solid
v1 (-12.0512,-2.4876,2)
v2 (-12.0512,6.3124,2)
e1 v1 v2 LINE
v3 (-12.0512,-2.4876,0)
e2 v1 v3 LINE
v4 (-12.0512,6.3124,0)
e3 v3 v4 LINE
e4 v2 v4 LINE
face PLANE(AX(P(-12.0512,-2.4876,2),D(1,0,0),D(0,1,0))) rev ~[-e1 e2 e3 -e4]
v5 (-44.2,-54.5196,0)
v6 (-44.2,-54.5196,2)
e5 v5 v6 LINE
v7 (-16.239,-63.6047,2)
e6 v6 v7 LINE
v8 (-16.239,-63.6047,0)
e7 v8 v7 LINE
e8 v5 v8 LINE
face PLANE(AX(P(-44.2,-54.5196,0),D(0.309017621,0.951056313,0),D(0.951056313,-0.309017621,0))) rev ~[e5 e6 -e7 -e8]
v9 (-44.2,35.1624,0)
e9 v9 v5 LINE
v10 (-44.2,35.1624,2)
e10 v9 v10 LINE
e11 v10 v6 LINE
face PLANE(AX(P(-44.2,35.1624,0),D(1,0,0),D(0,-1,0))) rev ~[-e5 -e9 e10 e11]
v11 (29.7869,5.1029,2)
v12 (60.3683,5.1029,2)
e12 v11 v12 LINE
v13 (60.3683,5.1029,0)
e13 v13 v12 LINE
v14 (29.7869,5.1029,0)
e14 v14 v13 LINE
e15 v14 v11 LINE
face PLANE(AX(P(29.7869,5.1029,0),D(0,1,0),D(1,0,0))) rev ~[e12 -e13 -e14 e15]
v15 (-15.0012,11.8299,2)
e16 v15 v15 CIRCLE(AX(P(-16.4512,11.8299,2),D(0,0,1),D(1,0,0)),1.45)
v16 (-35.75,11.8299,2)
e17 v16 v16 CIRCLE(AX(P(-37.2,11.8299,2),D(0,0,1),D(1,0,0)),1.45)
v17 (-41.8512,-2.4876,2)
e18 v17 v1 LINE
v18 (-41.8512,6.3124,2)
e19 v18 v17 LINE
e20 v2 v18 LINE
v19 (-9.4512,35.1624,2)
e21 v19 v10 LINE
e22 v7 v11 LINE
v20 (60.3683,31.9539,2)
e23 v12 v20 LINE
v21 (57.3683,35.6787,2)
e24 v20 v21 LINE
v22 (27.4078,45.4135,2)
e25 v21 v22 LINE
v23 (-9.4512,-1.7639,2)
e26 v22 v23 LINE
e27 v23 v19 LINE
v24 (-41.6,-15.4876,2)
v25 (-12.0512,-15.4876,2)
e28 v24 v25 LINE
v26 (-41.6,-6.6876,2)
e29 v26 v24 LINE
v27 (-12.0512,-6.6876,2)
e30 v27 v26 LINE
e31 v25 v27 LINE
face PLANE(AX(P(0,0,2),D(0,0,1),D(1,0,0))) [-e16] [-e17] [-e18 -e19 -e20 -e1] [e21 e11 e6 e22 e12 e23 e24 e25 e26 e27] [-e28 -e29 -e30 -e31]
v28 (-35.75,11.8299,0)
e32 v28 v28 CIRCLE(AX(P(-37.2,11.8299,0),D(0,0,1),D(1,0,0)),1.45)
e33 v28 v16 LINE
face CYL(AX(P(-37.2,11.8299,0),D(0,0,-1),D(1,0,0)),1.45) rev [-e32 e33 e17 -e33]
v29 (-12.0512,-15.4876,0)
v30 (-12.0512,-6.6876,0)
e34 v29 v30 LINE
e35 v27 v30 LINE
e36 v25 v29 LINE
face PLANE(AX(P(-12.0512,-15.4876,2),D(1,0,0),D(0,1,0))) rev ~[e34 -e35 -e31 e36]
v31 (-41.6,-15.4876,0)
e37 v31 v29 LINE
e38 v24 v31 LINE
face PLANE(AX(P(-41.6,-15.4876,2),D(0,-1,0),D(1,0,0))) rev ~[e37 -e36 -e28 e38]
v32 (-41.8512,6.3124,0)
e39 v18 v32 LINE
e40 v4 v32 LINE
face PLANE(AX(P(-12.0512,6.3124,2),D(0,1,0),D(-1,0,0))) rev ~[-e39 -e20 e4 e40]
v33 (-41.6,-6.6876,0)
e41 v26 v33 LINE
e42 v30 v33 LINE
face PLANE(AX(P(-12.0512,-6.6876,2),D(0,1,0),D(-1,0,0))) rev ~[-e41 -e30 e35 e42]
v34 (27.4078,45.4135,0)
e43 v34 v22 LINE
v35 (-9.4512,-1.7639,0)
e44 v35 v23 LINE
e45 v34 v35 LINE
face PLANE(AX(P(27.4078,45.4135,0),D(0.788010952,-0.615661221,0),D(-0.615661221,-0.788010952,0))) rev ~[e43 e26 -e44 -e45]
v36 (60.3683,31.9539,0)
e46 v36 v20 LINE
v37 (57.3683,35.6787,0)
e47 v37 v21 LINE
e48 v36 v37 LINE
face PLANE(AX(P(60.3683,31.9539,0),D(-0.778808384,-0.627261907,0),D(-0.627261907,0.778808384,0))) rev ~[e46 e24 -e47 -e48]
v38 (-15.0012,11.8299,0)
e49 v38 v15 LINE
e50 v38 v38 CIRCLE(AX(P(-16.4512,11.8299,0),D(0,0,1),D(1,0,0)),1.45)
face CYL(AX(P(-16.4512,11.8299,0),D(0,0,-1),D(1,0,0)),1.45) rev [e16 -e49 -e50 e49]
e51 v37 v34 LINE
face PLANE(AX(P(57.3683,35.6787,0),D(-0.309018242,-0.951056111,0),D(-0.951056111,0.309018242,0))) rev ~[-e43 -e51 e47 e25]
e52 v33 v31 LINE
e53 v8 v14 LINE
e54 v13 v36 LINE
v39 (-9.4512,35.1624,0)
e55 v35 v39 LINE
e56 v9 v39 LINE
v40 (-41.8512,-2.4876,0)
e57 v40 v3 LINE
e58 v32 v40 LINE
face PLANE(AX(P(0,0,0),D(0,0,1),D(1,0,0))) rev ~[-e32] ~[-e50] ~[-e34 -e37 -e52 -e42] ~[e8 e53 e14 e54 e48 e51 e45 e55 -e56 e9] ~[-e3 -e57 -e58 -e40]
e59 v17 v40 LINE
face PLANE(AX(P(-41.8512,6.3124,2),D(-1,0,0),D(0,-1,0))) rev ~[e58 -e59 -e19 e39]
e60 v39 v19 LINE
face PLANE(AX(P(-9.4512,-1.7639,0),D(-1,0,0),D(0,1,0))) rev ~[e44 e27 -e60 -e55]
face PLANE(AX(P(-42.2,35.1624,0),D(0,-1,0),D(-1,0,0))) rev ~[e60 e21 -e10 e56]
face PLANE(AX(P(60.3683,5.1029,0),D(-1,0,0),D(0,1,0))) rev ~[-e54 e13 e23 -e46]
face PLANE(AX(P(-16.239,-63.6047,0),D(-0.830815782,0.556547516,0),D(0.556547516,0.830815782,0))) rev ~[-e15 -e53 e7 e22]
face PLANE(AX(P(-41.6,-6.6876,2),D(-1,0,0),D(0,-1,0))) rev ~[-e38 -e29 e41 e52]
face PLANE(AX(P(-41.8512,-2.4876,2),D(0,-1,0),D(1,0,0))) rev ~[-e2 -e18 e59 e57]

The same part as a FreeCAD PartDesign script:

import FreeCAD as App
import Part
import Sketcher
Q = App.Units.Quantity


def add_polygon(sketch, points):
    """Adds a closed chain of lines whose ends are joined by coincident constraints."""
    first, n = sketch.GeometryCount, len(points)
    for a, b in zip(points, points[1:] + points[:1]):
        sketch.addGeometry(Part.LineSegment(App.Vector(*a, 0), App.Vector(*b, 0)), False)
    for i in range(n):
        sketch.addConstraint(Sketcher.Constraint("Coincident", first + i, 2, first + (i + 1) % n, 1))

doc = App.newDocument("Part")
body = doc.addObject("PartDesign::Body", "Body")

sketch1 = body.newObject("Sketcher::SketchObject", "Sketch")
sketch1.AttachmentSupport = (doc.getObject("XY_Plane"), [""])
sketch1.MapMode = "FlatFace"
add_polygon(sketch1, [(-44.2, -54.5), (-16.2, -63.6), (29.8, 5.1), (60.4, 5.1), (60.4, 32), (57.4, 35.7), (27.4, 45.4), (-9.5, -1.8), (-9.5, 35.2), (-44.2, 35.2)])
sketch1.addGeometry(Part.Circle(App.Vector(-37.2, 11.8, 0), App.Vector(0, 0, 1), 1.4), False)
sketch1.addGeometry(Part.Circle(App.Vector(-16.5, 11.8, 0), App.Vector(0, 0, 1), 1.4), False)
sketch1.addConstraint([
    Sketcher.Constraint("Horizontal", 2),
    Sketcher.Constraint("Vertical", 3),
    Sketcher.Constraint("Vertical", 7),
    Sketcher.Constraint("Horizontal", 8),
    Sketcher.Constraint("Vertical", 9),
    Sketcher.Constraint("Equal", 10, 11),
    Sketcher.Constraint("Parallel", 0, 5),
    Sketcher.Constraint("Horizontal", 10, 3, 11, 3),
    Sketcher.Constraint("Diameter", 10, Q("2.9 mm")),
    Sketcher.Constraint("Angle", 0, Q("-18 deg")),
    Sketcher.Constraint("Angle", 6, Q("-128 deg")),
    Sketcher.Constraint("DistanceX", 4, 2, 3, 2, Q("3 mm")),
    Sketcher.Constraint("DistanceX", 11, 3, 6, 2, Q("7 mm")),
    Sketcher.Constraint("DistanceX", 8, 2, 10, 3, Q("7 mm")),
    Sketcher.Constraint("Distance", 0, Q("29.4 mm")),
    Sketcher.Constraint("DistanceX", 10, 3, -1, 1, Q("37.2 mm")),
    Sketcher.Constraint("DistanceY", 3, 1, 3, 2, Q("26.851 mm")),
    Sketcher.Constraint("DistanceY", 9, 2, 9, 1, Q("89.682 mm")),
    Sketcher.Constraint("DistanceY", -1, 1, 10, 3, Q("11.83 mm")),
    Sketcher.Constraint("Distance", 1, Q("82.699 mm")),
    Sketcher.Constraint("Distance", 6, Q("59.869 mm")),
    Sketcher.Constraint("DistanceX", 2, 1, 2, 2, Q("30.5814 mm")),
    Sketcher.Constraint("DistanceX", 8, 2, 8, 1, Q("34.7488 mm")),
    Sketcher.Constraint("DistanceY", 7, 1, 7, 2, Q("36.9263 mm")),
    Sketcher.Constraint("DistanceX", -1, 1, 1, 2, Q("29.787 mm")),
    Sketcher.Constraint("DistanceY", -1, 1, 1, 2, Q("5.103 mm")),
])
pad1 = body.newObject("PartDesign::Pad", "Pad")
pad1.Profile = sketch1
pad1.Length = 2

sketch2 = body.newObject("Sketcher::SketchObject", "Sketch001")
sketch2.AttachmentSupport = (doc.getObject("XY_Plane"), [""])
sketch2.MapMode = "FlatFace"
sketch2.AttachmentOffset = App.Placement(App.Vector(0, 0, 2), App.Rotation())
add_polygon(sketch2, [(-12, -7), (-42, -7), (-42, -15), (-12, -15)])
add_polygon(sketch2, [(-12, 6), (-42, 6), (-42, -2), (-12, -2)])
sketch2.addConstraint([
    Sketcher.Constraint("Horizontal", 0),
    Sketcher.Constraint("Vertical", 1),
    Sketcher.Constraint("Horizontal", 2),
    Sketcher.Constraint("Vertical", 3),
    Sketcher.Constraint("Horizontal", 4),
    Sketcher.Constraint("Vertical", 5),
    Sketcher.Constraint("Horizontal", 6),
    Sketcher.Constraint("Vertical", 7),
    Sketcher.Constraint("Vertical", 3, 2, 6, 2),
    Sketcher.Constraint("Equal", 3, 5),
    Sketcher.Constraint("DistanceX", 4, 2, 4, 1, Q("29.8 mm")),
    Sketcher.Constraint("DistanceY", 1, 2, 1, 1, Q("8.8 mm")),
    Sketcher.Constraint("DistanceY", 0, 2, 4, 2, Q("13 mm")),
    Sketcher.Constraint("DistanceX", 0, 2, -1, 1, Q("41.6 mm")),
    Sketcher.Constraint("DistanceX", 0, 2, 0, 1, Q("29.5488 mm")),
    Sketcher.Constraint("DistanceY", 0, 2, -1, 1, Q("6.6876 mm")),
])
pocket1 = body.newObject("PartDesign::Pocket", "Pocket")
pocket1.Profile = sketch2
pocket1.Type = "ThroughAll"

doc.recompute()
